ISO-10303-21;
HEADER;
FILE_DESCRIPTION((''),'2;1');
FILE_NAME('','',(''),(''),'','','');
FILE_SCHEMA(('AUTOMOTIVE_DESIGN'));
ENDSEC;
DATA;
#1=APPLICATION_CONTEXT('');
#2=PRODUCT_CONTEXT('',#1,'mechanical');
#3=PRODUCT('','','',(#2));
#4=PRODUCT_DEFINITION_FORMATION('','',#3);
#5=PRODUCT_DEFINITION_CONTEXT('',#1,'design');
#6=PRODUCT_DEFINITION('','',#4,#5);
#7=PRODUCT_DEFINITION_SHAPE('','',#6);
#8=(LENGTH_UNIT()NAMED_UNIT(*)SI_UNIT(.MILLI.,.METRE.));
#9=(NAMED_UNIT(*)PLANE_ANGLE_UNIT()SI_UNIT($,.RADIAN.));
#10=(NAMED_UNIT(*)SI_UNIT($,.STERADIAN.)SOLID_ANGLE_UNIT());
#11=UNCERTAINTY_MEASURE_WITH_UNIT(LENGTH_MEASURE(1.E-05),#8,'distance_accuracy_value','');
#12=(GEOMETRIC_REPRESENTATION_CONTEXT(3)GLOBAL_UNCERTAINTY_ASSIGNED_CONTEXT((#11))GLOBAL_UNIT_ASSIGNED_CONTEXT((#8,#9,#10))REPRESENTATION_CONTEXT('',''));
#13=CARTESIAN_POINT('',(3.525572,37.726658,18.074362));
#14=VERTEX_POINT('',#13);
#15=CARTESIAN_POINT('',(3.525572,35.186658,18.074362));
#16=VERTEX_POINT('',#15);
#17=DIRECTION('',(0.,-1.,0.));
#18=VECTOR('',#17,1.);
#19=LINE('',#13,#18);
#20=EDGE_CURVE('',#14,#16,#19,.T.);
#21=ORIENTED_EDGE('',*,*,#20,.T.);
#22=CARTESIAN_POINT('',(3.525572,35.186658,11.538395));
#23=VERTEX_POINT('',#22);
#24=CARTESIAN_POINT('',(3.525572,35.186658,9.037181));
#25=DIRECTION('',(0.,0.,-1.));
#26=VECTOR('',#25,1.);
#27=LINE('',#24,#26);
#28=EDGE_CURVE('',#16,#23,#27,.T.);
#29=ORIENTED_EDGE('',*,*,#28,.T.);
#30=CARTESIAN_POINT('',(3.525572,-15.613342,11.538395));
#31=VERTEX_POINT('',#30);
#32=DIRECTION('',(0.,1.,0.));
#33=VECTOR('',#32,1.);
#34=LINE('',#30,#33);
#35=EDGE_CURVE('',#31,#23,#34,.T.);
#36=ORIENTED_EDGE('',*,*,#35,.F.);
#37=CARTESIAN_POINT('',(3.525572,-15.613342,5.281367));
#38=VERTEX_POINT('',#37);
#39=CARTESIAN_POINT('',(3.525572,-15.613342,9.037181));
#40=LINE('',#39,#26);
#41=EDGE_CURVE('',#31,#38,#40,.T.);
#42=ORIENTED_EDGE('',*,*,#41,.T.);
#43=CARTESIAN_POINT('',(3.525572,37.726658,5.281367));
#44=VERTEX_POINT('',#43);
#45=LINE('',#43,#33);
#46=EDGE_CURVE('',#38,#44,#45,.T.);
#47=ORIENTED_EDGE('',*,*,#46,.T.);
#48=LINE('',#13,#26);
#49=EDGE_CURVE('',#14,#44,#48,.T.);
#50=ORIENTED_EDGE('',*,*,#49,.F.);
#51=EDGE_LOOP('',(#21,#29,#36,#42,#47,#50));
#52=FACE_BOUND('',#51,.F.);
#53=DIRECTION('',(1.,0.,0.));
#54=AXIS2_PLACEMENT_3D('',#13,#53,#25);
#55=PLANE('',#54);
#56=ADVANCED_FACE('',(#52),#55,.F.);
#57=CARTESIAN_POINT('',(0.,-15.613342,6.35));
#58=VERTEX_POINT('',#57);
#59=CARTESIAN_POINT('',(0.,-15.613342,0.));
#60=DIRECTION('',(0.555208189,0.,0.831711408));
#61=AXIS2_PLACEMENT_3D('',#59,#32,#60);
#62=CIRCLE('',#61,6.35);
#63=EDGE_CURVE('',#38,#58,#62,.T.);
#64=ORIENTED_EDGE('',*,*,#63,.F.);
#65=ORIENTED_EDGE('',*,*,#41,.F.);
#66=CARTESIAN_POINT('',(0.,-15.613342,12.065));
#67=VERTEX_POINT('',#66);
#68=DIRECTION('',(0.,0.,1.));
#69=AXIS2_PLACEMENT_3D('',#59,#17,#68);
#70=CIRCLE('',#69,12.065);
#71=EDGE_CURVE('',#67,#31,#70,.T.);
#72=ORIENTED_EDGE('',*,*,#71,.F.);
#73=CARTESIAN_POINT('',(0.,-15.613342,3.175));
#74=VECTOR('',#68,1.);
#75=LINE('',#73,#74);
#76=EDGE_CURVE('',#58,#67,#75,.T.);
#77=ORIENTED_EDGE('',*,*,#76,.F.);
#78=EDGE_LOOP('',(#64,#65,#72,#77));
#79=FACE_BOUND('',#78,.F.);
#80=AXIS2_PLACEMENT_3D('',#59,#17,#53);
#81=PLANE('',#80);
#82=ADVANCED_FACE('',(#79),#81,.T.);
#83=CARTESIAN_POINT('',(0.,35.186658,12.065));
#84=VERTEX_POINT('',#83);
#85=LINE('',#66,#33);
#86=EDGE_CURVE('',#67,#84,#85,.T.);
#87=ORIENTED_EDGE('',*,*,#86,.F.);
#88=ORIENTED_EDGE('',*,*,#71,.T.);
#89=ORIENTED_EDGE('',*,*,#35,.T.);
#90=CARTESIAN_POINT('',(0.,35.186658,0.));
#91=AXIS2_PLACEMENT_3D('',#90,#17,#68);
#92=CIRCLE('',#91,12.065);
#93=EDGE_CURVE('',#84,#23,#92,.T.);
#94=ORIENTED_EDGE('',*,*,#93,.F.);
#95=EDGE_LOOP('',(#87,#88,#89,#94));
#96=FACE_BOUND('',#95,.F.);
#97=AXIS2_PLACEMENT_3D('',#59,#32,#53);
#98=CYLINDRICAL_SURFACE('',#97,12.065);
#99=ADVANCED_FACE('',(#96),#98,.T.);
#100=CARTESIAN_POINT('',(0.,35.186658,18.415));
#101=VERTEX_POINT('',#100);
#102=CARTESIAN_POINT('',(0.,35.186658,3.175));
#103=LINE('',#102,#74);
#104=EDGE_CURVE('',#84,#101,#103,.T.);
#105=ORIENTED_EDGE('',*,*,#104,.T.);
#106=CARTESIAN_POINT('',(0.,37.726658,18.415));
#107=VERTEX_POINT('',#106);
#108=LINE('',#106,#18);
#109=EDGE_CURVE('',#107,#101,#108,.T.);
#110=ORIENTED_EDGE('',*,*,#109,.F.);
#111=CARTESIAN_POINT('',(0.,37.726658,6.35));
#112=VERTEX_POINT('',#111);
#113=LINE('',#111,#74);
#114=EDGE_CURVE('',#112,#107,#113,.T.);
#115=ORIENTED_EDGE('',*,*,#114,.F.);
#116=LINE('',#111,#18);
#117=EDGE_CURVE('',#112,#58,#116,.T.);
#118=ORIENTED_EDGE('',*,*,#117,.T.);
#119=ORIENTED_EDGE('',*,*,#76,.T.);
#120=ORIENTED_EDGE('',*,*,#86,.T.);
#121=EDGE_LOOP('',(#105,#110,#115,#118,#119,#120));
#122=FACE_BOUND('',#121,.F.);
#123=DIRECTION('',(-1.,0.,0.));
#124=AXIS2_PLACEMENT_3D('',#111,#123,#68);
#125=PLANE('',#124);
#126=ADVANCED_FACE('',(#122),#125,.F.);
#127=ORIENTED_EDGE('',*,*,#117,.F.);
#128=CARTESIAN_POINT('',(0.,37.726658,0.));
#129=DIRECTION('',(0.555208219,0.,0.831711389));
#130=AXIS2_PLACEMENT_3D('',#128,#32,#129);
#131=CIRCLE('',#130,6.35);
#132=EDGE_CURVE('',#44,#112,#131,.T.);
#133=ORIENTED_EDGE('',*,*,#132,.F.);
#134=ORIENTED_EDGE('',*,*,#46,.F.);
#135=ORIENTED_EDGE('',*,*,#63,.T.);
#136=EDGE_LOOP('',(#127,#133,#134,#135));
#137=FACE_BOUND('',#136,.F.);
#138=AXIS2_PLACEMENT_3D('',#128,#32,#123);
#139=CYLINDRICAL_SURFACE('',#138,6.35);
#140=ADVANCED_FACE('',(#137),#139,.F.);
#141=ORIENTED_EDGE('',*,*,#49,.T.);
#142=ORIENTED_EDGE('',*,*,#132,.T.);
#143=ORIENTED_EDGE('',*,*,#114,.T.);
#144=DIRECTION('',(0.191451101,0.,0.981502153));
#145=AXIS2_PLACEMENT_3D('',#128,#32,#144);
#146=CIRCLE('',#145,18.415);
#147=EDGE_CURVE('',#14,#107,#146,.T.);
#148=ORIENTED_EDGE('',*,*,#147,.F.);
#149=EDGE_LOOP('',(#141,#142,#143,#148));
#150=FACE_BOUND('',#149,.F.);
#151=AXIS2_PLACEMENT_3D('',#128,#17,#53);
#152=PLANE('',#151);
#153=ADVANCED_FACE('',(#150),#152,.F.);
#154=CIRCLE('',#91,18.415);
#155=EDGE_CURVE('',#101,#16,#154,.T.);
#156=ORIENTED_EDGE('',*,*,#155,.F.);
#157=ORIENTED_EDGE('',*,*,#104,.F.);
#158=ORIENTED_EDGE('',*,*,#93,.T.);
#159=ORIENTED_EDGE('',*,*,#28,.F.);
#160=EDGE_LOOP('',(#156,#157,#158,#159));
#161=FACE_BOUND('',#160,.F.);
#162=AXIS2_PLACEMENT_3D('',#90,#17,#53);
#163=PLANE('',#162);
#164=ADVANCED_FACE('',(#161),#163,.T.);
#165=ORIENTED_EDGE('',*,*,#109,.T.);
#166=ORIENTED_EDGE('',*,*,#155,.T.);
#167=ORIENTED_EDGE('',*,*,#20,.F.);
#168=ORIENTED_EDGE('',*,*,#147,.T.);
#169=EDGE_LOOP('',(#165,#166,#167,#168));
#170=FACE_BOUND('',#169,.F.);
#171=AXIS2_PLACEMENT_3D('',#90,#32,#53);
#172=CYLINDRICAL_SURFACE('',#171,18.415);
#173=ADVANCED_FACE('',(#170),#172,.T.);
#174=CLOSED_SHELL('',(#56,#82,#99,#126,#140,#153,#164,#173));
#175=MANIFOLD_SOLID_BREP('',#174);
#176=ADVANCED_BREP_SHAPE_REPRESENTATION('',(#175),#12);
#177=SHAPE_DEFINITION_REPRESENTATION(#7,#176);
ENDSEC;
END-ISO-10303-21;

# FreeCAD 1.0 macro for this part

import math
import FreeCAD as App
import Part
import Sketcher
Q = App.Units.Quantity


def add_polygon(sketch, points):
    """Adds a closed chain of lines whose ends are joined by coincident constraints."""
    first, n = sketch.GeometryCount, len(points)
    for a, b in zip(points, points[1:] + points[:1]):
        sketch.addGeometry(Part.LineSegment(App.Vector(*a, 0), App.Vector(*b, 0)), False)
    for i in range(n):
        sketch.addConstraint(Sketcher.Constraint("Coincident", first + i, 2, first + (i + 1) % n, 1))

doc = App.newDocument("Part")
body = doc.addObject("PartDesign::Body", "Body")

sketch1 = body.newObject("Sketcher::SketchObject", "Sketch")
sketch1.AttachmentSupport = (doc.getObject("XY_Plane"), [""])
sketch1.MapMode = "FlatFace"
add_polygon(sketch1, [(0, 37.726658), (0, -15.613342), (12.065, -15.613342), (12.065, 35.186658), (18.415, 35.186658), (18.415, 37.726658)])
sketch1.addConstraint([
    Sketcher.Constraint("Vertical", 0),
    Sketcher.Constraint("Horizontal", 1),
    Sketcher.Constraint("Vertical", 2),
    Sketcher.Constraint("Horizontal", 3),
    Sketcher.Constraint("Vertical", 4),
    Sketcher.Constraint("Horizontal", 5),
    Sketcher.Constraint("PointOnObject", 0, 2, -2),
    Sketcher.Constraint("DistanceY", 2, 1, 2, 2, Q("2 in")),
    Sketcher.Constraint("DistanceY", 0, 2, 0, 1, Q("2.1 in")),
    Sketcher.Constraint("DistanceX", 3, 1, 3, 2, Q("0.25 in")),
    Sketcher.Constraint("DistanceX", 1, 1, 1, 2, Q("0.475 in")),
    Sketcher.Constraint("DistanceY", 0, 2, -1, 1, 15.613342),
])
revolution = body.newObject("PartDesign::Revolution", "Revolution")
revolution.Profile = sketch1
revolution.ReferenceAxis = (sketch1, ["V_Axis"])
revolution.Angle = 360

sketch2 = body.newObject("Sketcher::SketchObject", "Sketch001")
sketch2.AttachmentSupport = (doc.getObject("XZ_Plane"), [""])
sketch2.MapMode = "FlatFace"
sketch2.AttachmentOffset = App.Placement(App.Vector(0, 0, -37.726658), App.Rotation())
sketch2.addGeometry(Part.Circle(App.Vector(0, 0, 0), App.Vector(0, 0, 1), 6.35), False)
sketch2.addConstraint([
    Sketcher.Constraint("Coincident", 0, 3, -1, 1),
    Sketcher.Constraint("Diameter", 0, Q("0.5 in")),
])
pocket1 = body.newObject("PartDesign::Pocket", "Pocket")
pocket1.Profile = sketch2
pocket1.Length = Q("4 in")
pocket1.Reversed = True

sketch3 = body.newObject("Sketcher::SketchObject", "Sketch002")
sketch3.AttachmentSupport = (doc.getObject("XZ_Plane"), [""])
sketch3.MapMode = "FlatFace"
sketch3.AttachmentOffset = App.Placement(App.Vector(0, 0, -37.726658), App.Rotation())
sketch3.addGeometry([
    Part.LineSegment(App.Vector(0, 6.35, 0), App.Vector(0, 18.415, 0)),
    Part.ArcOfCircle(Part.Circle(App.Vector(0.000007, 0.000079, 0), App.Vector(0, 0, 1), 18.414921), math.radians(78.962493), math.radians(90.000021)),
    Part.LineSegment(App.Vector(3.525572, 18.074362, 0), App.Vector(3.525572, 5.281367, 0)),
    Part.ArcOfCircle(Part.Circle(App.Vector(-0.000001, 0, 0), App.Vector(0, 0, 1), 6.35), math.radians(56.274938), math.radians(89.999993)),
], False)
sketch3.addConstraint([
    Sketcher.Constraint("Coincident", 0, 2, 1, 2),
    Sketcher.Constraint("Coincident", 1, 1, 2, 1),
    Sketcher.Constraint("Coincident", 2, 2, 3, 1),
    Sketcher.Constraint("Coincident", 3, 2, 0, 1),
    Sketcher.Constraint("Vertical", 0),
    Sketcher.Constraint("Vertical", 2),
    Sketcher.Constraint("Coincident", 3, 3, -1, 1),
    Sketcher.Constraint("PointOnObject", 0, 2, -2),
    Sketcher.Constraint("Radius", 3, Q("0.25 in")),
    Sketcher.Constraint("DistanceY", 0, 1, 0, 2, Q("0.475 in")),
    Sketcher.Constraint("Radius", 1, 18.414921),
    Sketcher.Constraint("DistanceY", 2, 2, 2, 1, 12.792995),
    Sketcher.Constraint("DistanceX", -1, 1, 1, 1, 3.525572),
])
pocket2 = body.newObject("PartDesign::Pocket", "Pocket001")
pocket2.Profile = sketch3
pocket2.Length = Q("5 in")
pocket2.Reversed = True

doc.recompute()
